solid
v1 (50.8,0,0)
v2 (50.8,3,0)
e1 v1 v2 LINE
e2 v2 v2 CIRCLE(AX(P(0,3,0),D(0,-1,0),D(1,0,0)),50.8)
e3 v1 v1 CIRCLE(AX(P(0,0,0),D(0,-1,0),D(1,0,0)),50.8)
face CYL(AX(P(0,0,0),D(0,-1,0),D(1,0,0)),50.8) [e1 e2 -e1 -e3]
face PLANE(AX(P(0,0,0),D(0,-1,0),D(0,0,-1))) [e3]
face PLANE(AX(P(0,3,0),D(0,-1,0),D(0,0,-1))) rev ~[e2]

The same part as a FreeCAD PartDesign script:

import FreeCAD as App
import Part
import Sketcher
from FreeCAD import Vector
Q = App.Units.Quantity

doc = App.newDocument("Part")
body = doc.addObject("PartDesign::Body", "Body")

sketch1 = body.newObject("Sketcher::SketchObject", "Sketch")
sketch1.AttachmentSupport = (doc.getObject("XZ_Plane"), [""])
sketch1.MapMode = "FlatFace"
sketch1.addGeometry(Part.Circle(Vector(0, 0, 0), Vector(0, 0, 1), 51), False)
sketch1.addConstraint([
    Sketcher.Constraint("Coincident", 0, 3, -1, 1),
    Sketcher.Constraint("Diameter", 0, Q("4 in")),
])
pad1 = body.newObject("PartDesign::Pad", "Pad")
pad1.Profile = sketch1
pad1.Length = Q("0.1181102 in")
pad1.Reversed = True

doc.recompute()
